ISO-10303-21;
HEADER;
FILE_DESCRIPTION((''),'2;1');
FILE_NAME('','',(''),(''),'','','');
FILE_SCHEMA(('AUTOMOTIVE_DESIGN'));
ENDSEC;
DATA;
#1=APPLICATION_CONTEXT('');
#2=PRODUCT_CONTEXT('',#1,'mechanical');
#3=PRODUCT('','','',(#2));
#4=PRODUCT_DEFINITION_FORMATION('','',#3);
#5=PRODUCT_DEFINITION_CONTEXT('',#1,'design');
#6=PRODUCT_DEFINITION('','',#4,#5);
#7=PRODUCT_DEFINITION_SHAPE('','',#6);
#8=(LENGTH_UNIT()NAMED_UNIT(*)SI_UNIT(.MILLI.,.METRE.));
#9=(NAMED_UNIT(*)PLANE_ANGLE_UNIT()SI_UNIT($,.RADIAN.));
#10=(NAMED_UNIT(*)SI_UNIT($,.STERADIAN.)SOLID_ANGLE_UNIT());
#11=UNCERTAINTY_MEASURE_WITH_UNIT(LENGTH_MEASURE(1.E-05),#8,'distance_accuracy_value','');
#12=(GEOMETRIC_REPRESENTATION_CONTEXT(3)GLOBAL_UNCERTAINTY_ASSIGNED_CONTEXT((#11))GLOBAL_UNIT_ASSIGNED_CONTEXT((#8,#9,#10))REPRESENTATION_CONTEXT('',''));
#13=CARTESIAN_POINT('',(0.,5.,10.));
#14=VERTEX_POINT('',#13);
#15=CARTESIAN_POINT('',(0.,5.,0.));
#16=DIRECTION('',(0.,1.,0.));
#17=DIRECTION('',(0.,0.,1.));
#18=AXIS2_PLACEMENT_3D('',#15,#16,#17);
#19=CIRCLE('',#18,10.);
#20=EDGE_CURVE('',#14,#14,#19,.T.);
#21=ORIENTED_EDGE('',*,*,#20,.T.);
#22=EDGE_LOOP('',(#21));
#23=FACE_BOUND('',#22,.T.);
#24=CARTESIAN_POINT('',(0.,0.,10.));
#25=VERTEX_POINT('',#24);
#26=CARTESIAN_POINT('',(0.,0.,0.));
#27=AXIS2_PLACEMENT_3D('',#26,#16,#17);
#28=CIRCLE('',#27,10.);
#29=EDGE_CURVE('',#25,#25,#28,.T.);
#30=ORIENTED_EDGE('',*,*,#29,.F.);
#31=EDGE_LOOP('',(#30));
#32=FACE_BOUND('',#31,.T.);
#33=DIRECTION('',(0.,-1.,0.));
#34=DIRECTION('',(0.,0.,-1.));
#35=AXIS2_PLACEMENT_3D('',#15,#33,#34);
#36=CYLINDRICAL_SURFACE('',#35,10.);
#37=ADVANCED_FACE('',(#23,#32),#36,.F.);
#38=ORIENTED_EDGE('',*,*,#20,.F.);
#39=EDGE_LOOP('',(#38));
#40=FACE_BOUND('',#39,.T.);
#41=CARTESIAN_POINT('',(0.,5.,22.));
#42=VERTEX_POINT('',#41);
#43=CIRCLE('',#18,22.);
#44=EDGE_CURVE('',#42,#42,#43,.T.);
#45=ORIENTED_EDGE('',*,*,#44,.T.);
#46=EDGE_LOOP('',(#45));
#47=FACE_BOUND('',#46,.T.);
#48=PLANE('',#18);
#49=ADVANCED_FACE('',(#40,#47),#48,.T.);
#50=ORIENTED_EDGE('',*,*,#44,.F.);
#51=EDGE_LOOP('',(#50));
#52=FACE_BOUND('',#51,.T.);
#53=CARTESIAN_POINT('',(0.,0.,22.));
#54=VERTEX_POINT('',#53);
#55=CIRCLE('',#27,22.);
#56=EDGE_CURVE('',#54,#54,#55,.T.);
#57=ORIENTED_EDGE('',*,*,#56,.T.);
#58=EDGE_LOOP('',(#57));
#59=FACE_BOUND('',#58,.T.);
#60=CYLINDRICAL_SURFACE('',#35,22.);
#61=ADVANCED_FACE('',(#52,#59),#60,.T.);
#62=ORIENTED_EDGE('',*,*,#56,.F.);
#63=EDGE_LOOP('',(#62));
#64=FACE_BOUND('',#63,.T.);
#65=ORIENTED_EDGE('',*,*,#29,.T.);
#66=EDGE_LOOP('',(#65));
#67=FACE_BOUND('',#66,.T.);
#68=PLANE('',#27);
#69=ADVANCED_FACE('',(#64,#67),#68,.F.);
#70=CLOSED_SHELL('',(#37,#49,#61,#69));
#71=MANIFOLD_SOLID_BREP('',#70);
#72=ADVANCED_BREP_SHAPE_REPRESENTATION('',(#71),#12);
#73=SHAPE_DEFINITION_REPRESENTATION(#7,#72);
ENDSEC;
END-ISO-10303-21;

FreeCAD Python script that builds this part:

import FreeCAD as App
import Part
import Sketcher
from FreeCAD import Vector

doc = App.newDocument("Part")
body = doc.addObject("PartDesign::Body", "Body")

# Sketch on XZ plane
sketch1 = body.newObject("Sketcher::SketchObject", "Sketch")
sketch1.AttachmentSupport = (doc.getObject("XZ_Plane"), [""])
sketch1.MapMode = "FlatFace"
sketch1.addGeometry([
    Part.Circle(Vector(0, 0, 0), Vector(0, 0, 1), 22),
    Part.Circle(Vector(0, 0, 0), Vector(0, 0, 1), 10),
], False)
sketch1.addConstraint([
    Sketcher.Constraint("Coincident", 0, 3, -1, 1),
    Sketcher.Constraint("Coincident", 1, 3, -1, 1),
    Sketcher.Constraint("Diameter", 0, 44.0),
    Sketcher.Constraint("Diameter", 1, 20.0),
])
pad1 = body.newObject("PartDesign::Pad", "Pad")
pad1.Profile = sketch1
pad1.Length = 5
pad1.Reversed = True

doc.recompute()
